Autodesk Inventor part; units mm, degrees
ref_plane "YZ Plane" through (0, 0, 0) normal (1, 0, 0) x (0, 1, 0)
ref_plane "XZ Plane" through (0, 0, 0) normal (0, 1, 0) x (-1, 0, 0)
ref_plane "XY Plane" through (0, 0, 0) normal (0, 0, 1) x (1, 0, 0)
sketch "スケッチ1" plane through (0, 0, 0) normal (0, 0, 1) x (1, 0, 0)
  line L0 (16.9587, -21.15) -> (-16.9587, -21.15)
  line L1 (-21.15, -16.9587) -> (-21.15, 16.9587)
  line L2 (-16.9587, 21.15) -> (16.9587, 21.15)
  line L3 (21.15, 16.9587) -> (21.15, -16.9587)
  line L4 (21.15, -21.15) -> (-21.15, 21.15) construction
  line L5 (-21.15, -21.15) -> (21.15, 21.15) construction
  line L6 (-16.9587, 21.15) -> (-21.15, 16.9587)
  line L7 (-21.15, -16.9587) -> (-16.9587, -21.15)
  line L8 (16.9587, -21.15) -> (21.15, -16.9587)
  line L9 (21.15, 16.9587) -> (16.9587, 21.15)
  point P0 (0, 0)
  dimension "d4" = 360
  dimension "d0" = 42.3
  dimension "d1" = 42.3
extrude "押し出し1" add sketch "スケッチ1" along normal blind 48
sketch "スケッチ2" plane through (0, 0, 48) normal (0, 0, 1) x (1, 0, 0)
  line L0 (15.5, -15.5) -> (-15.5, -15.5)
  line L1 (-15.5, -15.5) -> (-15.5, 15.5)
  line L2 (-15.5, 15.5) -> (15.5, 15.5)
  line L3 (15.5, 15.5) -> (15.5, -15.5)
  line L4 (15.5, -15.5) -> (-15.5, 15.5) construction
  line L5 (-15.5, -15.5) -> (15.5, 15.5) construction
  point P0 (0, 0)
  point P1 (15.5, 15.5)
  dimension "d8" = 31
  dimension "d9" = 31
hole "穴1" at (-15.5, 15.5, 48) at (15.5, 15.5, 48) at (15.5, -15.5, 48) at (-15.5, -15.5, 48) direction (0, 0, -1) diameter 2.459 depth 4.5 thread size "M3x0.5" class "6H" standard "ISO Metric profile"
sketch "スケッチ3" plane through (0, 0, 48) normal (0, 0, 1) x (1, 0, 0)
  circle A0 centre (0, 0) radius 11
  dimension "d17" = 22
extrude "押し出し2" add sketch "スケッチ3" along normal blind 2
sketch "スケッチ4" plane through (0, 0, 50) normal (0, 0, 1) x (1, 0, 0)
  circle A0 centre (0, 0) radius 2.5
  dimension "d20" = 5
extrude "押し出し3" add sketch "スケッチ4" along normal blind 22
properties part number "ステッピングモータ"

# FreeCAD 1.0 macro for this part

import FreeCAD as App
import Part
import Sketcher
Q = App.Units.Quantity

doc = App.newDocument("Part")
params = doc.addObject("Spreadsheet::Sheet", "Params")
for row, (alias, value) in enumerate([
    ("pad1_length", "48 mm"),
    ("hole_diameter", "2.459 mm"),
    ("hole_depth", "4.5 mm"),
    ("sketch3_diameter", "22 mm"),
    ("pad2_length", "2 mm"),
    ("sketch4_diameter", "5 mm"),
    ("pad3_length", "22 mm"),
], start=1):
    params.set(f"A{row}", alias)
    params.set(f"B{row}", "=" + value)
    params.setAlias(f"B{row}", alias)

body = doc.addObject("PartDesign::Body", "Body")

sketch1 = doc.addObject("Sketcher::SketchObject", "Sketch")
body.addObject(sketch1)
sketch1.AttachmentSupport = (doc.XY_Plane, [""])
sketch1.MapMode = "FlatFace"
sketch1.addGeometry(Part.LineSegment(App.Vector(-17, -21, 0), App.Vector(17, -21, 0)), False)
sketch1.addGeometry(Part.LineSegment(App.Vector(17, -21, 0), App.Vector(21, -17, 0)), False)
sketch1.addGeometry(Part.LineSegment(App.Vector(21, -17, 0), App.Vector(21, 17, 0)), False)
sketch1.addGeometry(Part.LineSegment(App.Vector(21, 17, 0), App.Vector(17, 21, 0)), False)
sketch1.addGeometry(Part.LineSegment(App.Vector(17, 21, 0), App.Vector(-17, 21, 0)), False)
sketch1.addGeometry(Part.LineSegment(App.Vector(-17, 21, 0), App.Vector(-21, 17, 0)), False)
sketch1.addGeometry(Part.LineSegment(App.Vector(-21, 17, 0), App.Vector(-21, -17, 0)), False)
sketch1.addGeometry(Part.LineSegment(App.Vector(-21, -17, 0), App.Vector(-17, -21, 0)), False)
sketch1.addConstraint(Sketcher.Constraint("Coincident", 0, 2, 1, 1))
sketch1.addConstraint(Sketcher.Constraint("Coincident", 1, 2, 2, 1))
sketch1.addConstraint(Sketcher.Constraint("Coincident", 2, 2, 3, 1))
sketch1.addConstraint(Sketcher.Constraint("Coincident", 3, 2, 4, 1))
sketch1.addConstraint(Sketcher.Constraint("Coincident", 4, 2, 5, 1))
sketch1.addConstraint(Sketcher.Constraint("Coincident", 5, 2, 6, 1))
sketch1.addConstraint(Sketcher.Constraint("Coincident", 6, 2, 7, 1))
sketch1.addConstraint(Sketcher.Constraint("Coincident", 7, 2, 0, 1))
sketch1.addConstraint(Sketcher.Constraint("Horizontal", 0))
sketch1.addConstraint(Sketcher.Constraint("Vertical", 2))
sketch1.addConstraint(Sketcher.Constraint("Horizontal", 4))
sketch1.addConstraint(Sketcher.Constraint("Vertical", 6))
sketch1.addConstraint(Sketcher.Constraint("Symmetric", 0, 2, 4, 2, -1, 1))
sketch1.addConstraint(Sketcher.Constraint("Symmetric", 1, 2, 5, 2, -1, 1))
sketch1.addConstraint(Sketcher.Constraint("Perpendicular", 1, 3))
sketch1.addConstraint(Sketcher.Constraint("Perpendicular", 5, 7))
sketch1.addConstraint(Sketcher.Constraint("Horizontal", 2, 2, 5, 2))
sketch1.addConstraint(Sketcher.Constraint("Horizontal", 1, 2, 6, 2))
sketch1.addConstraint(Sketcher.Constraint("Vertical", 0, 2, 3, 2))
sketch1.addConstraint(Sketcher.Constraint("Equal", 4, 2))
sketch1.addConstraint(Sketcher.Constraint("DistanceY", 0, 2, 3, 2, Q("42.3 mm")))
sketch1.addConstraint(Sketcher.Constraint("DistanceX", 0, 1, 0, 2, Q("33.9174 mm")))
pad1 = doc.addObject("PartDesign::Pad", "Pad")
body.addObject(pad1)
pad1.Profile = sketch1
pad1.setExpression("Length", "Params.pad1_length")

sketch2 = doc.addObject("Sketcher::SketchObject", "Sketch001")
body.addObject(sketch2)
sketch2.AttachmentSupport = (doc.XY_Plane, [""])
sketch2.MapMode = "FlatFace"
sketch2.AttachmentOffset = App.Placement(App.Vector(0, 0, 48), App.Rotation())
sketch2.addGeometry(Part.Circle(App.Vector(-15.5, 15.5, 0), App.Vector(0, 0, 1), 1.2), False)
sketch2.addGeometry(Part.Circle(App.Vector(15.5, 15.5, 0), App.Vector(0, 0, 1), 1.2), False)
sketch2.addGeometry(Part.Circle(App.Vector(15.5, -15.5, 0), App.Vector(0, 0, 1), 1.2), False)
sketch2.addGeometry(Part.Circle(App.Vector(-15.5, -15.5, 0), App.Vector(0, 0, 1), 1.2), False)
sketch2.addConstraint(Sketcher.Constraint("Equal", 0, 1))
sketch2.addConstraint(Sketcher.Constraint("Equal", 1, 2))
sketch2.addConstraint(Sketcher.Constraint("Equal", 2, 3))
sketch2.addConstraint(Sketcher.Constraint("Symmetric", 0, 3, 2, 3, -1, 1))
sketch2.addConstraint(Sketcher.Constraint("Symmetric", 1, 3, 3, 3, -1, 1))
sketch2.addConstraint(Sketcher.Constraint("Symmetric", 0, 3, 1, 3, -2))
sketch2.addConstraint(Sketcher.Constraint("Diameter", 0, Q("2.459 mm")))
sketch2.addConstraint(Sketcher.Constraint("DistanceX", 0, 3, 1, 3, Q("31 mm")))
sketch2.addConstraint(Sketcher.Constraint("DistanceY", 2, 3, 1, 3, Q("31 mm")))
doc.recompute()
hole = doc.addObject("PartDesign::Hole", "Hole")
body.addObject(hole)
hole.Profile = sketch2
hole.ThreadType = "None"
hole.setExpression("Diameter", "Params.hole_diameter")
hole.DepthType = "Dimension"
hole.setExpression("Depth", "Params.hole_depth")
hole.DrillPoint = "Flat"

sketch3 = doc.addObject("Sketcher::SketchObject", "Sketch002")
body.addObject(sketch3)
sketch3.AttachmentSupport = (doc.XY_Plane, [""])
sketch3.MapMode = "FlatFace"
sketch3.AttachmentOffset = App.Placement(App.Vector(0, 0, 48), App.Rotation())
sketch3.addGeometry(Part.Circle(App.Vector(0, 0, 0), App.Vector(0, 0, 1), 11), False)
sketch3.addConstraint(Sketcher.Constraint("Coincident", 0, 3, -1, 1))
sketch3.addConstraint(Sketcher.Constraint("Diameter", 0, Q("22 mm")))
sketch3.setExpression("Constraints[1]", "Params.sketch3_diameter")
pad2 = doc.addObject("PartDesign::Pad", "Pad001")
body.addObject(pad2)
pad2.Profile = sketch3
pad2.setExpression("Length", "Params.pad2_length")

sketch4 = doc.addObject("Sketcher::SketchObject", "Sketch003")
body.addObject(sketch4)
sketch4.AttachmentSupport = (doc.XY_Plane, [""])
sketch4.MapMode = "FlatFace"
sketch4.AttachmentOffset = App.Placement(App.Vector(0, 0, 50), App.Rotation())
sketch4.addGeometry(Part.Circle(App.Vector(0, 0, 0), App.Vector(0, 0, 1), 2.5), False)
sketch4.addConstraint(Sketcher.Constraint("Coincident", 0, 3, -1, 1))
sketch4.addConstraint(Sketcher.Constraint("Diameter", 0, Q("5 mm")))
sketch4.setExpression("Constraints[1]", "Params.sketch4_diameter")
pad3 = doc.addObject("PartDesign::Pad", "Pad002")
body.addObject(pad3)
pad3.Profile = sketch4
pad3.setExpression("Length", "Params.pad3_length")

doc.recompute()
